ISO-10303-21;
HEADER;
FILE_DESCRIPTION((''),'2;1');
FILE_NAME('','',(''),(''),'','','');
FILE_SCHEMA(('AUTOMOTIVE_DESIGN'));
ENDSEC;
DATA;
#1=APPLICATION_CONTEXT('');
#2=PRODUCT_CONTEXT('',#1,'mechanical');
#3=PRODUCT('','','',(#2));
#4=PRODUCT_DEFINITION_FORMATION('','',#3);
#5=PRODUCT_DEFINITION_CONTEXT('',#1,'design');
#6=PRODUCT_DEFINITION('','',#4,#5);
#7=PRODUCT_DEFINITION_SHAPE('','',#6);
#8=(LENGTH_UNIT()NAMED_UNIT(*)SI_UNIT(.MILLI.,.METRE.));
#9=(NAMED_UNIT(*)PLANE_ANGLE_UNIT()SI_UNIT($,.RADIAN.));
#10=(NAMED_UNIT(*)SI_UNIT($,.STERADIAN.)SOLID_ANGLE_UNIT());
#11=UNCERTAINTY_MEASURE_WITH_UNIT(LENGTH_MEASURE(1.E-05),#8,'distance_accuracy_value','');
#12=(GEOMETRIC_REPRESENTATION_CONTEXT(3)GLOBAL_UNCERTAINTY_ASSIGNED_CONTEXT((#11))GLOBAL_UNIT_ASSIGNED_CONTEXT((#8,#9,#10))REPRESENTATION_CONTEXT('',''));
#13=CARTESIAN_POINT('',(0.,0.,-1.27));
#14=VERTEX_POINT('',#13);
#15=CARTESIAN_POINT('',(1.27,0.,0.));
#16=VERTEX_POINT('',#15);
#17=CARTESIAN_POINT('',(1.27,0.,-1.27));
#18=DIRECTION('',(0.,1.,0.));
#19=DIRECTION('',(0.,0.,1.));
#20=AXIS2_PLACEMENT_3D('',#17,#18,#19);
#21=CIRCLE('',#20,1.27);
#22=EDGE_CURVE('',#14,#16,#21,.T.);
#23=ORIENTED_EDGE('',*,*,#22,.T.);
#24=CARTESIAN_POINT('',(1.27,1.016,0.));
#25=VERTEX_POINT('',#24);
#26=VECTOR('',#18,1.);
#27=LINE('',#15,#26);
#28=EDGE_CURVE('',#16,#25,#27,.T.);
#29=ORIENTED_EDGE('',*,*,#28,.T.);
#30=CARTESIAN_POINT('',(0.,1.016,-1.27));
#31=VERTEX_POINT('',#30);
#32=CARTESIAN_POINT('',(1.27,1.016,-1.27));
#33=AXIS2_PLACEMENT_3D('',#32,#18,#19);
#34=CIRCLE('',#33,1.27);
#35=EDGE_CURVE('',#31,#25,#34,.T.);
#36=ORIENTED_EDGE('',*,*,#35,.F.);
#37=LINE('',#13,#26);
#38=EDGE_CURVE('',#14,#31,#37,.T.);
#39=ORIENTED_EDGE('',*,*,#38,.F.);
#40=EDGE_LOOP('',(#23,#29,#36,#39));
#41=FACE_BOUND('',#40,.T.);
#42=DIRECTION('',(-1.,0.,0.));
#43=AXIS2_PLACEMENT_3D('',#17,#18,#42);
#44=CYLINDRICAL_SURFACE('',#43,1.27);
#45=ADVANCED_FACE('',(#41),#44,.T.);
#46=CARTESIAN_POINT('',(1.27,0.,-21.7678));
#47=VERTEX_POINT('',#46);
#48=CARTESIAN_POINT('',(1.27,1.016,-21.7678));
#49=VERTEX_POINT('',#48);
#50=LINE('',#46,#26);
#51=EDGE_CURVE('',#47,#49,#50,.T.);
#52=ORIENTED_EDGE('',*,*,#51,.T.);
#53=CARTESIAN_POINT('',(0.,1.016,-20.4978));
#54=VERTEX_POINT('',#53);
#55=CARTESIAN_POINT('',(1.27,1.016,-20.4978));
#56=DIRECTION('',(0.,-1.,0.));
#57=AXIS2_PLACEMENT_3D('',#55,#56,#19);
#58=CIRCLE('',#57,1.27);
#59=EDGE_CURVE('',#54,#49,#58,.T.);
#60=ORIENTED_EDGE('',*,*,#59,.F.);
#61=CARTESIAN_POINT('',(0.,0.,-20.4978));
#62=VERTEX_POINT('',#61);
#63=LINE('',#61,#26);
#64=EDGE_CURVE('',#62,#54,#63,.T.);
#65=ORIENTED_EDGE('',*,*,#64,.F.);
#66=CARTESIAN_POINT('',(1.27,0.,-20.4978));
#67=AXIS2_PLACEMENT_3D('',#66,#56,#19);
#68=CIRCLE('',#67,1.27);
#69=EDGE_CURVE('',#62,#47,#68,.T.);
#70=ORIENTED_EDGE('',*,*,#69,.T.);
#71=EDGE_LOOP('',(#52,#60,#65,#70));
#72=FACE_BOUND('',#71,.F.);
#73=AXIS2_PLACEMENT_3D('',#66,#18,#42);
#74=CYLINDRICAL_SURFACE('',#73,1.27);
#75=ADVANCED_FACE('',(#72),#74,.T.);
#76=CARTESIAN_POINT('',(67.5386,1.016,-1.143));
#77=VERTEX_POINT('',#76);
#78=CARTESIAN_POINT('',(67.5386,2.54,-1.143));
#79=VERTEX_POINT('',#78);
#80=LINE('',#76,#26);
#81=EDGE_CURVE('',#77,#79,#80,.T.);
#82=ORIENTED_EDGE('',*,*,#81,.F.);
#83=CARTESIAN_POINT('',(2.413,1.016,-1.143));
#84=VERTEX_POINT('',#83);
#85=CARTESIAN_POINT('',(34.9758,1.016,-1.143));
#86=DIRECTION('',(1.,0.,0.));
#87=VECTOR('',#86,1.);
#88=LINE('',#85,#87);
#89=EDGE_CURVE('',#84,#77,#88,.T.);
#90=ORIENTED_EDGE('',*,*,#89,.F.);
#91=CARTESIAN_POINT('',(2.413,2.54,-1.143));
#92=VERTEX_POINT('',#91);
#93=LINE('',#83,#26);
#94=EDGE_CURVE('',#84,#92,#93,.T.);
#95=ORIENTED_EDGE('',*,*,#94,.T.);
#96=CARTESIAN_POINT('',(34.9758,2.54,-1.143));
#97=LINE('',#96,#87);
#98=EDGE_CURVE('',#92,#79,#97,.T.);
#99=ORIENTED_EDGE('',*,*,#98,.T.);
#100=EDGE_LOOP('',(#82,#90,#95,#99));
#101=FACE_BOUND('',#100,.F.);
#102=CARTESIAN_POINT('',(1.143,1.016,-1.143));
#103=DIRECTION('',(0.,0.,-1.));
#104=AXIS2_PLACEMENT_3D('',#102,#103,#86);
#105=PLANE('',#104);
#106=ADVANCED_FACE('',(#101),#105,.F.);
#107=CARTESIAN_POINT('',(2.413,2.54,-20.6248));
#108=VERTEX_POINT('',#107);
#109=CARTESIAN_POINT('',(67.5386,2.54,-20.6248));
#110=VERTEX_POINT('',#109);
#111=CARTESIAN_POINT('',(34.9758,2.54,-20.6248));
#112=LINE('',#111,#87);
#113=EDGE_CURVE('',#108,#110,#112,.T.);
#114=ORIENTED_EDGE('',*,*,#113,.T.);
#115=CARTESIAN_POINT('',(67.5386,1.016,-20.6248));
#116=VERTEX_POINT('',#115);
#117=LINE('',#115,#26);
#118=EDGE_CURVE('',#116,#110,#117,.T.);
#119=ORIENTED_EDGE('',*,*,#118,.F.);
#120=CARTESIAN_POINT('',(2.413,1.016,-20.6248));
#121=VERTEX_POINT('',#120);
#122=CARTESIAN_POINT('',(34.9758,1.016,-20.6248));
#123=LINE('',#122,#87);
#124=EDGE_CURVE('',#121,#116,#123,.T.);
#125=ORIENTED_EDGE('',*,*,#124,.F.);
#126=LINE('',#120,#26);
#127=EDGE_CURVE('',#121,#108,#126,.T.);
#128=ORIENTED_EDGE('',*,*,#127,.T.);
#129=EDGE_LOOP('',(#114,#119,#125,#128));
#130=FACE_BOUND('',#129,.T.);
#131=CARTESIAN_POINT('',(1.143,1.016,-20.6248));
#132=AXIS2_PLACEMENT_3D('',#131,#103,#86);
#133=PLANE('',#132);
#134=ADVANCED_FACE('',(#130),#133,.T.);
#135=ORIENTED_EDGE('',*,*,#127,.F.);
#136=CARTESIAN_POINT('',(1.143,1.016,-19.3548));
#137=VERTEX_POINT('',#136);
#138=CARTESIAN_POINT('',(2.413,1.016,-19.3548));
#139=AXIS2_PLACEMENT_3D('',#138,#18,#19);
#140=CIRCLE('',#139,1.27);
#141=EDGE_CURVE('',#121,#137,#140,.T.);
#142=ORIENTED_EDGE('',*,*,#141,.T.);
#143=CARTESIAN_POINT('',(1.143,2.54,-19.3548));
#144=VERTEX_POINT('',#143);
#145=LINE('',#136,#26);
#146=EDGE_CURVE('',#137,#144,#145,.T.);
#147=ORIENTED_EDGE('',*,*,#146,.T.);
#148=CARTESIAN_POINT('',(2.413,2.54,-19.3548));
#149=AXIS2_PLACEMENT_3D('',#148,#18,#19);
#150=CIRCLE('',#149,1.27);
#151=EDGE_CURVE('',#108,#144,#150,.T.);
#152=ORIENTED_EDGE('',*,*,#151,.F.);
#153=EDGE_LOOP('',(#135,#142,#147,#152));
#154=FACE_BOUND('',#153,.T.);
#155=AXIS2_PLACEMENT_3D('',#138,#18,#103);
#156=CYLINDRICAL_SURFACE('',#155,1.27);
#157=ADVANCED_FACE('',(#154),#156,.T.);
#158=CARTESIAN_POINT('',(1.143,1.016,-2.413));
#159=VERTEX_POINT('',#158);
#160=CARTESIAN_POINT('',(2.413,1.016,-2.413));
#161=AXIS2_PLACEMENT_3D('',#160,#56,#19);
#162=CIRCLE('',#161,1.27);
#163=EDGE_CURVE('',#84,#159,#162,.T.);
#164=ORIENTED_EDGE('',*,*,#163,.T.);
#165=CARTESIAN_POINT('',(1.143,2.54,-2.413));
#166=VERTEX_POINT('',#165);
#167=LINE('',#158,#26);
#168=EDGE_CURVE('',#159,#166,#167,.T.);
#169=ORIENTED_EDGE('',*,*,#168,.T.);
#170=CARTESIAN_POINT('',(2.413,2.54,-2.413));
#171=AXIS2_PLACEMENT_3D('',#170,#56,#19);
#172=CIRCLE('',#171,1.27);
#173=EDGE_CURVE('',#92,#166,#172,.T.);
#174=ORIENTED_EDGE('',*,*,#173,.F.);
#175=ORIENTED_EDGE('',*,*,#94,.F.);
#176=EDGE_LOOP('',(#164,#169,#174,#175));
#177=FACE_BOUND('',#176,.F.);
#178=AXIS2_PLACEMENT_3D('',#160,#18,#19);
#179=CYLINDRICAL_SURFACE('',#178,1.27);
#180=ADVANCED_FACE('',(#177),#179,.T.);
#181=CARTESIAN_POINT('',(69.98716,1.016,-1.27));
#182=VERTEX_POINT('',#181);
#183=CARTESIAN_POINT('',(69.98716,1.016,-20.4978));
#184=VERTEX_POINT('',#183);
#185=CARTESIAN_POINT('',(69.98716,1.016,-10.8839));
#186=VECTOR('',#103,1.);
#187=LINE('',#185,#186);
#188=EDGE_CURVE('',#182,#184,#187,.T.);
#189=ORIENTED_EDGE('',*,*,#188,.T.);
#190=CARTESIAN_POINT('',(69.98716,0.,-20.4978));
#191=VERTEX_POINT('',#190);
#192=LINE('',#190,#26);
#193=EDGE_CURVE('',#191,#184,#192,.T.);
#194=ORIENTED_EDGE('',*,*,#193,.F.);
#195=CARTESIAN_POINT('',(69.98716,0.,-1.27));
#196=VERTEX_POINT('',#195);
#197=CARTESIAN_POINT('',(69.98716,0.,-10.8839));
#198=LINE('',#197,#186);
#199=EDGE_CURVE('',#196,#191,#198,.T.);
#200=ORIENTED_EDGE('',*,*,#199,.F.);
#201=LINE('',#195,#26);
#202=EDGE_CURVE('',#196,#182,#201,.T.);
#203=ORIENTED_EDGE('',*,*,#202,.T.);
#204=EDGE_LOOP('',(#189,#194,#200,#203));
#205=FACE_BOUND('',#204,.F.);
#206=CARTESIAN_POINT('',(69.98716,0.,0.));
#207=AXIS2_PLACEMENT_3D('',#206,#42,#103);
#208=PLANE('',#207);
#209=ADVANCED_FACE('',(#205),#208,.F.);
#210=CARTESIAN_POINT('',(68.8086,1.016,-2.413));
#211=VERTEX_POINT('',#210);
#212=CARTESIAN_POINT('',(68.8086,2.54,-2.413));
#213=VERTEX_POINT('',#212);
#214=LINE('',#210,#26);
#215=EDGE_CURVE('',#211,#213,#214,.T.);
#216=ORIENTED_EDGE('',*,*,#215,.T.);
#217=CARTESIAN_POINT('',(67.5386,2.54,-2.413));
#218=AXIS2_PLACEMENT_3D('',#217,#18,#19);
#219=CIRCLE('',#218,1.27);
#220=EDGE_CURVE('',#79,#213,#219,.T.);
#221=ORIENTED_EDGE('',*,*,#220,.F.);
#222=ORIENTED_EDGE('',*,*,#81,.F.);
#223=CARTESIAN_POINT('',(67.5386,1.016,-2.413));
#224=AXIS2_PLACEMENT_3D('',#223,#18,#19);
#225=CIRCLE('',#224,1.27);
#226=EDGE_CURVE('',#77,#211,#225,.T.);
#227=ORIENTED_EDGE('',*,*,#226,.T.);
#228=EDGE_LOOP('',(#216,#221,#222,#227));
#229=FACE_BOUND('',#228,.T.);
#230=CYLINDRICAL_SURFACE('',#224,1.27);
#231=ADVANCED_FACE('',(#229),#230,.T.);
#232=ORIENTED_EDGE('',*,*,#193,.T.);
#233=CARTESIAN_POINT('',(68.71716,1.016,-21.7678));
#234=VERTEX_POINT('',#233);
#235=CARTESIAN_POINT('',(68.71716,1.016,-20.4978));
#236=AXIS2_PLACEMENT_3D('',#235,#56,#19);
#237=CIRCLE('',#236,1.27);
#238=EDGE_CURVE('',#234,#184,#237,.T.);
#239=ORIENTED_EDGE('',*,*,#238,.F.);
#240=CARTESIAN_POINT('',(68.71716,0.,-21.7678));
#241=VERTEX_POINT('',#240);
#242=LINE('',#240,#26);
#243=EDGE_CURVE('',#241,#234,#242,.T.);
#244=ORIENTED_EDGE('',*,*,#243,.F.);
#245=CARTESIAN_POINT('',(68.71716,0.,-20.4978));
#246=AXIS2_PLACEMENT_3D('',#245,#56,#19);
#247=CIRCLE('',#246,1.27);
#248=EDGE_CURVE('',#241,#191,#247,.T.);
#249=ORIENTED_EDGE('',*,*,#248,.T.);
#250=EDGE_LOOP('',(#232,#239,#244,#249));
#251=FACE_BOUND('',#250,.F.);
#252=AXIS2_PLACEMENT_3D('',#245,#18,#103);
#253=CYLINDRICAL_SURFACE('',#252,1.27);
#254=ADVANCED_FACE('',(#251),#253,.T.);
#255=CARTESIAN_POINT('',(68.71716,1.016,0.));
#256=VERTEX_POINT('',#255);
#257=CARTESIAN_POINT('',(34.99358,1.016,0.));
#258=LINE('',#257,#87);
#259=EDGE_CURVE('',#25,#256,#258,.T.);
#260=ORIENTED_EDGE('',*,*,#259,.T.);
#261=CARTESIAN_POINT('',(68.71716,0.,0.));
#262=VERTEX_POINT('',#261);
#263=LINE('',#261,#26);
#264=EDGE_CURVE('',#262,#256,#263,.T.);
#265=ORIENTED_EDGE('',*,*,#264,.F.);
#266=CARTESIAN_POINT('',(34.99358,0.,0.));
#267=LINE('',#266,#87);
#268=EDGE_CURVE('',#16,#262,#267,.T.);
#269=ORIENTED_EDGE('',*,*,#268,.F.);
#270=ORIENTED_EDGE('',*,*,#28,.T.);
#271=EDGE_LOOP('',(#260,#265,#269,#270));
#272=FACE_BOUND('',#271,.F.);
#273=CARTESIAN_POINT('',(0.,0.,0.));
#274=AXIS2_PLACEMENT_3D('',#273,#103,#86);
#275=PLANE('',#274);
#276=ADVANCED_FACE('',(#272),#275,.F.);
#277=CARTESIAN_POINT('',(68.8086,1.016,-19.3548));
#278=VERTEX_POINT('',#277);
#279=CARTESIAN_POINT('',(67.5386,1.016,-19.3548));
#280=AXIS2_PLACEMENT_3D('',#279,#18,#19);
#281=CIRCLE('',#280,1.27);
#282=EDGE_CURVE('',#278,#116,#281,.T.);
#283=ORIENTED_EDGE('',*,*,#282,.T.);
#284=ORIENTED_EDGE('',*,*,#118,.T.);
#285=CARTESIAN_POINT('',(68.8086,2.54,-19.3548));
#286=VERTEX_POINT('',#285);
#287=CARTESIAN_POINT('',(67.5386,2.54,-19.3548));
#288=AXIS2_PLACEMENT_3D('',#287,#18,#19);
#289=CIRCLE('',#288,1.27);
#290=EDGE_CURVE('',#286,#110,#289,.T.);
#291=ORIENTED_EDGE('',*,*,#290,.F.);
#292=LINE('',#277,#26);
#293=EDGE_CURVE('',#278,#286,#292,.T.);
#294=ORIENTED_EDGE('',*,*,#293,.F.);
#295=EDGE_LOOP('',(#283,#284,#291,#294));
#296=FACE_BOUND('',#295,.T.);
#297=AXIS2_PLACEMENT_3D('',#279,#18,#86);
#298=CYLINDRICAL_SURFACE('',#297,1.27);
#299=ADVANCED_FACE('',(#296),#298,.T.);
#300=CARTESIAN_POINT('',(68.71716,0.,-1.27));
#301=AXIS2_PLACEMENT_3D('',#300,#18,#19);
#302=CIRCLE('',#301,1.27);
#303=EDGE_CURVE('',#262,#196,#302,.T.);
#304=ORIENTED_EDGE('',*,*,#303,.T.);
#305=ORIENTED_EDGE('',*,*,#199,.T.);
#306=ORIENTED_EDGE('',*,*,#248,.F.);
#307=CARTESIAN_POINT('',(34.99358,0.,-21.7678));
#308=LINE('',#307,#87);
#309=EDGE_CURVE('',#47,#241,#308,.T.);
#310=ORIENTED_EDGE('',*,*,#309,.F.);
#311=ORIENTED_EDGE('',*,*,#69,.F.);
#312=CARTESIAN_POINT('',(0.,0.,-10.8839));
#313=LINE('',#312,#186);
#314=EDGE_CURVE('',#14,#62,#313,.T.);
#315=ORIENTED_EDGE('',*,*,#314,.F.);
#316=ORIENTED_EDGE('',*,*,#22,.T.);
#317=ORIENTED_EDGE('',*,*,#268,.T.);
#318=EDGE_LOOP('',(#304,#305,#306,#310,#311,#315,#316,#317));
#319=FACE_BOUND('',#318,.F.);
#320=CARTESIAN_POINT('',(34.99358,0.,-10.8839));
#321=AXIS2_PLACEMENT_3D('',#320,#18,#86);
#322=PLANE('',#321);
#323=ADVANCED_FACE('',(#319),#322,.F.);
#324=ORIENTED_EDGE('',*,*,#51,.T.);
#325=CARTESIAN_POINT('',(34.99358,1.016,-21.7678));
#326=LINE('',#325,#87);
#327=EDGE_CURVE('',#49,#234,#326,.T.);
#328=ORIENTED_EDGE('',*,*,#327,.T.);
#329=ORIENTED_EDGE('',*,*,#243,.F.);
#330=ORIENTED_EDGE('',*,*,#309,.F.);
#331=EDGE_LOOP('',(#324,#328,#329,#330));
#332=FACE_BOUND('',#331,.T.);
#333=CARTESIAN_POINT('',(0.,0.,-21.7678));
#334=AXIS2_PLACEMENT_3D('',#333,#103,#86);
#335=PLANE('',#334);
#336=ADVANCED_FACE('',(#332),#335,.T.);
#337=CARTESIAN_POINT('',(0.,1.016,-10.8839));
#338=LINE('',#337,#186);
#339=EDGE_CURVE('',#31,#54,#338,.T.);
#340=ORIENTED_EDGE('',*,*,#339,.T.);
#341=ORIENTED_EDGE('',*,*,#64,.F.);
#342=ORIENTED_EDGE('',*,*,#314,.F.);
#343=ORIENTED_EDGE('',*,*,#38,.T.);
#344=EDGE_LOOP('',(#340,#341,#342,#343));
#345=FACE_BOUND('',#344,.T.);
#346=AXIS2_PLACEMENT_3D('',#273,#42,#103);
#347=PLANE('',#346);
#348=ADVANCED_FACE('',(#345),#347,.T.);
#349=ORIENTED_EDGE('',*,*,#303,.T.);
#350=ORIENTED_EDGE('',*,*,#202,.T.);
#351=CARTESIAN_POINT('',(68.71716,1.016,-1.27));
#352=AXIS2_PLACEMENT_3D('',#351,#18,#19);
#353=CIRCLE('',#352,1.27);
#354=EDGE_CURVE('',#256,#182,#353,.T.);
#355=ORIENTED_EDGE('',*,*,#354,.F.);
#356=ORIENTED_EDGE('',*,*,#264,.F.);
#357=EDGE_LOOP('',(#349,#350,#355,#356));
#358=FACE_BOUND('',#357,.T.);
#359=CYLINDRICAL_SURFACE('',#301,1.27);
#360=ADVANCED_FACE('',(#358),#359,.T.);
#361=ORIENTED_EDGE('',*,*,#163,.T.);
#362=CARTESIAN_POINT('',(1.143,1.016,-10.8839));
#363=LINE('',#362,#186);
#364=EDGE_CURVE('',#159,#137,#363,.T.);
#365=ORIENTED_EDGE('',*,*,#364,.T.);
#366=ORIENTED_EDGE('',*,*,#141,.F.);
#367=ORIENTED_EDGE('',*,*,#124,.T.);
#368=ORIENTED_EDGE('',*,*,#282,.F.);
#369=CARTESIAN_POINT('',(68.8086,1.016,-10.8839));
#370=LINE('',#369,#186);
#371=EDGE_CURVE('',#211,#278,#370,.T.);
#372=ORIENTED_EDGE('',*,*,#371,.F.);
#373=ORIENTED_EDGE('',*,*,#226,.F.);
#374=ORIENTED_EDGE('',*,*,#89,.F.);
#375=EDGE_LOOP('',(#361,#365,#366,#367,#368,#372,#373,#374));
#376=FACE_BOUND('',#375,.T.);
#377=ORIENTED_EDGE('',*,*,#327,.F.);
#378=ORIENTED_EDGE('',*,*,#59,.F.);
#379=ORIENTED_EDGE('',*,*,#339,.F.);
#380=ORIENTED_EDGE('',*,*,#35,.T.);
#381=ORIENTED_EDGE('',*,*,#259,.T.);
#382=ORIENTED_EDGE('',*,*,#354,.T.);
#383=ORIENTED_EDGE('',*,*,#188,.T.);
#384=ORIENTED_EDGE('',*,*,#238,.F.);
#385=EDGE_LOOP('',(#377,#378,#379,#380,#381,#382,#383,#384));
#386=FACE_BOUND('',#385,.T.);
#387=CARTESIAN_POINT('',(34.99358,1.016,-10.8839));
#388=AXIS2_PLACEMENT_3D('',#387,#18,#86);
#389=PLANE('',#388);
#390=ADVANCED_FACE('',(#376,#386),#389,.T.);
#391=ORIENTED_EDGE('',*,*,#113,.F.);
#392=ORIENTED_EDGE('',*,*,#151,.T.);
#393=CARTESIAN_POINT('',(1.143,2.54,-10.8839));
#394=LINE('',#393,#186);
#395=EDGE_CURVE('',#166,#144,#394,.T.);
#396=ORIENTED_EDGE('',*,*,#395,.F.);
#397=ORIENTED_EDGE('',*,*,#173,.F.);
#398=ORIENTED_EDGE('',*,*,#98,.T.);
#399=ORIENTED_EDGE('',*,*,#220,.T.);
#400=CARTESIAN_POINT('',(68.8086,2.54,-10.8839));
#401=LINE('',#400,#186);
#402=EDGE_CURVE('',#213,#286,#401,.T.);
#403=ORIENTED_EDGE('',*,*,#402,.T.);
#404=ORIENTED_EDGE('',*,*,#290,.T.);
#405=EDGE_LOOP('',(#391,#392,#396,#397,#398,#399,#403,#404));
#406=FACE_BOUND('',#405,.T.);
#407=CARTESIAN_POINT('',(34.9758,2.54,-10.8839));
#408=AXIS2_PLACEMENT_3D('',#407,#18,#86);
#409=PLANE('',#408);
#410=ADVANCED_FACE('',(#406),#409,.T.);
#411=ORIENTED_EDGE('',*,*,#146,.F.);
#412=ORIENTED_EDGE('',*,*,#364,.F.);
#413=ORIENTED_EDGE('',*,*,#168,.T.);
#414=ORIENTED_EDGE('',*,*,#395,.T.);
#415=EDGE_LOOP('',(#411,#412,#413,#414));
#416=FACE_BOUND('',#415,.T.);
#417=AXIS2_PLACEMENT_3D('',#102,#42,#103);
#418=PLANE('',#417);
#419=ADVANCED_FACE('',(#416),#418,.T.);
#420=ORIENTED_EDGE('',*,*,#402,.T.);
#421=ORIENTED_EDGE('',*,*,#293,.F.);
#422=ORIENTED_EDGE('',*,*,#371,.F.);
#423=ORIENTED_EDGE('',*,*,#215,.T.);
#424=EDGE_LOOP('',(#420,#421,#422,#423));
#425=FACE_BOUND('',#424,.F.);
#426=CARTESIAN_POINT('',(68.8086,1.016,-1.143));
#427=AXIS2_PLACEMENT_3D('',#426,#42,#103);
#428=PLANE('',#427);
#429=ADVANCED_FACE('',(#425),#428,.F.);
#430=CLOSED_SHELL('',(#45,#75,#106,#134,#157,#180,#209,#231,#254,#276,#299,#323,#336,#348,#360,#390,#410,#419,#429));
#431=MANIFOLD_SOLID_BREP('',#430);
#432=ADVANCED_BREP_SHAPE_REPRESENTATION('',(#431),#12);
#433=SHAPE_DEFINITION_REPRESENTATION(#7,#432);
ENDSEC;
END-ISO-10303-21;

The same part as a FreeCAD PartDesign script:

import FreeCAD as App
import Part
import Sketcher
from FreeCAD import Vector
Q = App.Units.Quantity


def edges_at(feature, points):
    """Names of the edges that pass closest to the given points."""
    edges = feature.Shape.Edges
    near = lambda p: min(range(len(edges)), key=lambda i: edges[i].distToShape(Part.Vertex(*p))[0])
    return sorted({f"Edge{near(p) + 1}" for p in points})


def add_polygon(sketch, points):
    """Adds a closed chain of lines whose ends are joined by coincident constraints."""
    first, n = sketch.GeometryCount, len(points)
    for a, b in zip(points, points[1:] + points[:1]):
        sketch.addGeometry(Part.LineSegment(App.Vector(*a, 0), App.Vector(*b, 0)), False)
    for i in range(n):
        sketch.addConstraint(Sketcher.Constraint("Coincident", first + i, 2, first + (i + 1) % n, 1))

doc = App.newDocument("Part")
body = doc.addObject("PartDesign::Body", "Body")

# Sketch on XZ plane
sketch1 = body.newObject("Sketcher::SketchObject", "Sketch")
sketch1.AttachmentSupport = (doc.getObject("XZ_Plane"), [""])
sketch1.MapMode = "FlatFace"
add_polygon(sketch1, [(0, -21.7678), (0, 0), (69.98716, 0), (69.98716, -21.7678)])  # lines 0-3
sketch1.addConstraint([
    Sketcher.Constraint("Vertical", 0),
    Sketcher.Constraint("Horizontal", 1),
    Sketcher.Constraint("Vertical", 2),
    Sketcher.Constraint("Horizontal", 3),
    Sketcher.Constraint("Coincident", 0, 2, -1, 1),
    Sketcher.Constraint("DistanceY", 0, 1, 0, 2, Q("0.857 in")),
    Sketcher.Constraint("DistanceX", 1, 1, 1, 2, Q("2.7554 in")),
])
pad1 = body.newObject("PartDesign::Pad", "Pad")
pad1.Profile = sketch1
pad1.Length = Q("0.04 in")
pad1.Reversed = True

# Sketch on XZ plane
sketch2 = body.newObject("Sketcher::SketchObject", "Sketch001")
sketch2.AttachmentSupport = (doc.getObject("XZ_Plane"), [""])
sketch2.MapMode = "FlatFace"
sketch2.AttachmentOffset = App.Placement(Vector(0, 0, -0.04 * 25.4), App.Rotation())
add_polygon(sketch2, [(1.143, -20.6248), (1.143, -1.143), (68.8086, -1.143), (68.8086, -20.6248)])  # lines 0-3
sketch2.addConstraint([
    Sketcher.Constraint("Vertical", 0),
    Sketcher.Constraint("Horizontal", 1),
    Sketcher.Constraint("Vertical", 2),
    Sketcher.Constraint("Horizontal", 3),
    Sketcher.Constraint("DistanceX", 1, 1, 1, 2, Q("2.664 in")),
    Sketcher.Constraint("DistanceY", 0, 1, 0, 2, Q("0.767 in")),
    Sketcher.Constraint("DistanceX", -1, 1, 0, 2, Q("0.045 in")),
    Sketcher.Constraint("DistanceY", 0, 2, -1, 1, Q("0.045 in")),
])
pad2 = body.newObject("PartDesign::Pad", "Pad001")
pad2.Profile = sketch2
pad2.Length = Q("0.06 in")
pad2.Reversed = True
doc.recompute()

fillet = body.newObject("PartDesign::Fillet", "Fillet")
fillet.Base = (pad2, edges_at(pad2, [
    (1.143, 1.778, -20.625),
    (1.143, 1.778, -1.143),
    (68.809, 1.778, -1.143),
    (68.809, 1.778, -20.625),
    (0, 0.508, -21.768),
    (69.987, 0.508, -21.768),
    (69.987, 0.508, 0),
    (0, 0.508, 0),
]))
fillet.Radius = Q("0.05 in")

doc.recompute()
